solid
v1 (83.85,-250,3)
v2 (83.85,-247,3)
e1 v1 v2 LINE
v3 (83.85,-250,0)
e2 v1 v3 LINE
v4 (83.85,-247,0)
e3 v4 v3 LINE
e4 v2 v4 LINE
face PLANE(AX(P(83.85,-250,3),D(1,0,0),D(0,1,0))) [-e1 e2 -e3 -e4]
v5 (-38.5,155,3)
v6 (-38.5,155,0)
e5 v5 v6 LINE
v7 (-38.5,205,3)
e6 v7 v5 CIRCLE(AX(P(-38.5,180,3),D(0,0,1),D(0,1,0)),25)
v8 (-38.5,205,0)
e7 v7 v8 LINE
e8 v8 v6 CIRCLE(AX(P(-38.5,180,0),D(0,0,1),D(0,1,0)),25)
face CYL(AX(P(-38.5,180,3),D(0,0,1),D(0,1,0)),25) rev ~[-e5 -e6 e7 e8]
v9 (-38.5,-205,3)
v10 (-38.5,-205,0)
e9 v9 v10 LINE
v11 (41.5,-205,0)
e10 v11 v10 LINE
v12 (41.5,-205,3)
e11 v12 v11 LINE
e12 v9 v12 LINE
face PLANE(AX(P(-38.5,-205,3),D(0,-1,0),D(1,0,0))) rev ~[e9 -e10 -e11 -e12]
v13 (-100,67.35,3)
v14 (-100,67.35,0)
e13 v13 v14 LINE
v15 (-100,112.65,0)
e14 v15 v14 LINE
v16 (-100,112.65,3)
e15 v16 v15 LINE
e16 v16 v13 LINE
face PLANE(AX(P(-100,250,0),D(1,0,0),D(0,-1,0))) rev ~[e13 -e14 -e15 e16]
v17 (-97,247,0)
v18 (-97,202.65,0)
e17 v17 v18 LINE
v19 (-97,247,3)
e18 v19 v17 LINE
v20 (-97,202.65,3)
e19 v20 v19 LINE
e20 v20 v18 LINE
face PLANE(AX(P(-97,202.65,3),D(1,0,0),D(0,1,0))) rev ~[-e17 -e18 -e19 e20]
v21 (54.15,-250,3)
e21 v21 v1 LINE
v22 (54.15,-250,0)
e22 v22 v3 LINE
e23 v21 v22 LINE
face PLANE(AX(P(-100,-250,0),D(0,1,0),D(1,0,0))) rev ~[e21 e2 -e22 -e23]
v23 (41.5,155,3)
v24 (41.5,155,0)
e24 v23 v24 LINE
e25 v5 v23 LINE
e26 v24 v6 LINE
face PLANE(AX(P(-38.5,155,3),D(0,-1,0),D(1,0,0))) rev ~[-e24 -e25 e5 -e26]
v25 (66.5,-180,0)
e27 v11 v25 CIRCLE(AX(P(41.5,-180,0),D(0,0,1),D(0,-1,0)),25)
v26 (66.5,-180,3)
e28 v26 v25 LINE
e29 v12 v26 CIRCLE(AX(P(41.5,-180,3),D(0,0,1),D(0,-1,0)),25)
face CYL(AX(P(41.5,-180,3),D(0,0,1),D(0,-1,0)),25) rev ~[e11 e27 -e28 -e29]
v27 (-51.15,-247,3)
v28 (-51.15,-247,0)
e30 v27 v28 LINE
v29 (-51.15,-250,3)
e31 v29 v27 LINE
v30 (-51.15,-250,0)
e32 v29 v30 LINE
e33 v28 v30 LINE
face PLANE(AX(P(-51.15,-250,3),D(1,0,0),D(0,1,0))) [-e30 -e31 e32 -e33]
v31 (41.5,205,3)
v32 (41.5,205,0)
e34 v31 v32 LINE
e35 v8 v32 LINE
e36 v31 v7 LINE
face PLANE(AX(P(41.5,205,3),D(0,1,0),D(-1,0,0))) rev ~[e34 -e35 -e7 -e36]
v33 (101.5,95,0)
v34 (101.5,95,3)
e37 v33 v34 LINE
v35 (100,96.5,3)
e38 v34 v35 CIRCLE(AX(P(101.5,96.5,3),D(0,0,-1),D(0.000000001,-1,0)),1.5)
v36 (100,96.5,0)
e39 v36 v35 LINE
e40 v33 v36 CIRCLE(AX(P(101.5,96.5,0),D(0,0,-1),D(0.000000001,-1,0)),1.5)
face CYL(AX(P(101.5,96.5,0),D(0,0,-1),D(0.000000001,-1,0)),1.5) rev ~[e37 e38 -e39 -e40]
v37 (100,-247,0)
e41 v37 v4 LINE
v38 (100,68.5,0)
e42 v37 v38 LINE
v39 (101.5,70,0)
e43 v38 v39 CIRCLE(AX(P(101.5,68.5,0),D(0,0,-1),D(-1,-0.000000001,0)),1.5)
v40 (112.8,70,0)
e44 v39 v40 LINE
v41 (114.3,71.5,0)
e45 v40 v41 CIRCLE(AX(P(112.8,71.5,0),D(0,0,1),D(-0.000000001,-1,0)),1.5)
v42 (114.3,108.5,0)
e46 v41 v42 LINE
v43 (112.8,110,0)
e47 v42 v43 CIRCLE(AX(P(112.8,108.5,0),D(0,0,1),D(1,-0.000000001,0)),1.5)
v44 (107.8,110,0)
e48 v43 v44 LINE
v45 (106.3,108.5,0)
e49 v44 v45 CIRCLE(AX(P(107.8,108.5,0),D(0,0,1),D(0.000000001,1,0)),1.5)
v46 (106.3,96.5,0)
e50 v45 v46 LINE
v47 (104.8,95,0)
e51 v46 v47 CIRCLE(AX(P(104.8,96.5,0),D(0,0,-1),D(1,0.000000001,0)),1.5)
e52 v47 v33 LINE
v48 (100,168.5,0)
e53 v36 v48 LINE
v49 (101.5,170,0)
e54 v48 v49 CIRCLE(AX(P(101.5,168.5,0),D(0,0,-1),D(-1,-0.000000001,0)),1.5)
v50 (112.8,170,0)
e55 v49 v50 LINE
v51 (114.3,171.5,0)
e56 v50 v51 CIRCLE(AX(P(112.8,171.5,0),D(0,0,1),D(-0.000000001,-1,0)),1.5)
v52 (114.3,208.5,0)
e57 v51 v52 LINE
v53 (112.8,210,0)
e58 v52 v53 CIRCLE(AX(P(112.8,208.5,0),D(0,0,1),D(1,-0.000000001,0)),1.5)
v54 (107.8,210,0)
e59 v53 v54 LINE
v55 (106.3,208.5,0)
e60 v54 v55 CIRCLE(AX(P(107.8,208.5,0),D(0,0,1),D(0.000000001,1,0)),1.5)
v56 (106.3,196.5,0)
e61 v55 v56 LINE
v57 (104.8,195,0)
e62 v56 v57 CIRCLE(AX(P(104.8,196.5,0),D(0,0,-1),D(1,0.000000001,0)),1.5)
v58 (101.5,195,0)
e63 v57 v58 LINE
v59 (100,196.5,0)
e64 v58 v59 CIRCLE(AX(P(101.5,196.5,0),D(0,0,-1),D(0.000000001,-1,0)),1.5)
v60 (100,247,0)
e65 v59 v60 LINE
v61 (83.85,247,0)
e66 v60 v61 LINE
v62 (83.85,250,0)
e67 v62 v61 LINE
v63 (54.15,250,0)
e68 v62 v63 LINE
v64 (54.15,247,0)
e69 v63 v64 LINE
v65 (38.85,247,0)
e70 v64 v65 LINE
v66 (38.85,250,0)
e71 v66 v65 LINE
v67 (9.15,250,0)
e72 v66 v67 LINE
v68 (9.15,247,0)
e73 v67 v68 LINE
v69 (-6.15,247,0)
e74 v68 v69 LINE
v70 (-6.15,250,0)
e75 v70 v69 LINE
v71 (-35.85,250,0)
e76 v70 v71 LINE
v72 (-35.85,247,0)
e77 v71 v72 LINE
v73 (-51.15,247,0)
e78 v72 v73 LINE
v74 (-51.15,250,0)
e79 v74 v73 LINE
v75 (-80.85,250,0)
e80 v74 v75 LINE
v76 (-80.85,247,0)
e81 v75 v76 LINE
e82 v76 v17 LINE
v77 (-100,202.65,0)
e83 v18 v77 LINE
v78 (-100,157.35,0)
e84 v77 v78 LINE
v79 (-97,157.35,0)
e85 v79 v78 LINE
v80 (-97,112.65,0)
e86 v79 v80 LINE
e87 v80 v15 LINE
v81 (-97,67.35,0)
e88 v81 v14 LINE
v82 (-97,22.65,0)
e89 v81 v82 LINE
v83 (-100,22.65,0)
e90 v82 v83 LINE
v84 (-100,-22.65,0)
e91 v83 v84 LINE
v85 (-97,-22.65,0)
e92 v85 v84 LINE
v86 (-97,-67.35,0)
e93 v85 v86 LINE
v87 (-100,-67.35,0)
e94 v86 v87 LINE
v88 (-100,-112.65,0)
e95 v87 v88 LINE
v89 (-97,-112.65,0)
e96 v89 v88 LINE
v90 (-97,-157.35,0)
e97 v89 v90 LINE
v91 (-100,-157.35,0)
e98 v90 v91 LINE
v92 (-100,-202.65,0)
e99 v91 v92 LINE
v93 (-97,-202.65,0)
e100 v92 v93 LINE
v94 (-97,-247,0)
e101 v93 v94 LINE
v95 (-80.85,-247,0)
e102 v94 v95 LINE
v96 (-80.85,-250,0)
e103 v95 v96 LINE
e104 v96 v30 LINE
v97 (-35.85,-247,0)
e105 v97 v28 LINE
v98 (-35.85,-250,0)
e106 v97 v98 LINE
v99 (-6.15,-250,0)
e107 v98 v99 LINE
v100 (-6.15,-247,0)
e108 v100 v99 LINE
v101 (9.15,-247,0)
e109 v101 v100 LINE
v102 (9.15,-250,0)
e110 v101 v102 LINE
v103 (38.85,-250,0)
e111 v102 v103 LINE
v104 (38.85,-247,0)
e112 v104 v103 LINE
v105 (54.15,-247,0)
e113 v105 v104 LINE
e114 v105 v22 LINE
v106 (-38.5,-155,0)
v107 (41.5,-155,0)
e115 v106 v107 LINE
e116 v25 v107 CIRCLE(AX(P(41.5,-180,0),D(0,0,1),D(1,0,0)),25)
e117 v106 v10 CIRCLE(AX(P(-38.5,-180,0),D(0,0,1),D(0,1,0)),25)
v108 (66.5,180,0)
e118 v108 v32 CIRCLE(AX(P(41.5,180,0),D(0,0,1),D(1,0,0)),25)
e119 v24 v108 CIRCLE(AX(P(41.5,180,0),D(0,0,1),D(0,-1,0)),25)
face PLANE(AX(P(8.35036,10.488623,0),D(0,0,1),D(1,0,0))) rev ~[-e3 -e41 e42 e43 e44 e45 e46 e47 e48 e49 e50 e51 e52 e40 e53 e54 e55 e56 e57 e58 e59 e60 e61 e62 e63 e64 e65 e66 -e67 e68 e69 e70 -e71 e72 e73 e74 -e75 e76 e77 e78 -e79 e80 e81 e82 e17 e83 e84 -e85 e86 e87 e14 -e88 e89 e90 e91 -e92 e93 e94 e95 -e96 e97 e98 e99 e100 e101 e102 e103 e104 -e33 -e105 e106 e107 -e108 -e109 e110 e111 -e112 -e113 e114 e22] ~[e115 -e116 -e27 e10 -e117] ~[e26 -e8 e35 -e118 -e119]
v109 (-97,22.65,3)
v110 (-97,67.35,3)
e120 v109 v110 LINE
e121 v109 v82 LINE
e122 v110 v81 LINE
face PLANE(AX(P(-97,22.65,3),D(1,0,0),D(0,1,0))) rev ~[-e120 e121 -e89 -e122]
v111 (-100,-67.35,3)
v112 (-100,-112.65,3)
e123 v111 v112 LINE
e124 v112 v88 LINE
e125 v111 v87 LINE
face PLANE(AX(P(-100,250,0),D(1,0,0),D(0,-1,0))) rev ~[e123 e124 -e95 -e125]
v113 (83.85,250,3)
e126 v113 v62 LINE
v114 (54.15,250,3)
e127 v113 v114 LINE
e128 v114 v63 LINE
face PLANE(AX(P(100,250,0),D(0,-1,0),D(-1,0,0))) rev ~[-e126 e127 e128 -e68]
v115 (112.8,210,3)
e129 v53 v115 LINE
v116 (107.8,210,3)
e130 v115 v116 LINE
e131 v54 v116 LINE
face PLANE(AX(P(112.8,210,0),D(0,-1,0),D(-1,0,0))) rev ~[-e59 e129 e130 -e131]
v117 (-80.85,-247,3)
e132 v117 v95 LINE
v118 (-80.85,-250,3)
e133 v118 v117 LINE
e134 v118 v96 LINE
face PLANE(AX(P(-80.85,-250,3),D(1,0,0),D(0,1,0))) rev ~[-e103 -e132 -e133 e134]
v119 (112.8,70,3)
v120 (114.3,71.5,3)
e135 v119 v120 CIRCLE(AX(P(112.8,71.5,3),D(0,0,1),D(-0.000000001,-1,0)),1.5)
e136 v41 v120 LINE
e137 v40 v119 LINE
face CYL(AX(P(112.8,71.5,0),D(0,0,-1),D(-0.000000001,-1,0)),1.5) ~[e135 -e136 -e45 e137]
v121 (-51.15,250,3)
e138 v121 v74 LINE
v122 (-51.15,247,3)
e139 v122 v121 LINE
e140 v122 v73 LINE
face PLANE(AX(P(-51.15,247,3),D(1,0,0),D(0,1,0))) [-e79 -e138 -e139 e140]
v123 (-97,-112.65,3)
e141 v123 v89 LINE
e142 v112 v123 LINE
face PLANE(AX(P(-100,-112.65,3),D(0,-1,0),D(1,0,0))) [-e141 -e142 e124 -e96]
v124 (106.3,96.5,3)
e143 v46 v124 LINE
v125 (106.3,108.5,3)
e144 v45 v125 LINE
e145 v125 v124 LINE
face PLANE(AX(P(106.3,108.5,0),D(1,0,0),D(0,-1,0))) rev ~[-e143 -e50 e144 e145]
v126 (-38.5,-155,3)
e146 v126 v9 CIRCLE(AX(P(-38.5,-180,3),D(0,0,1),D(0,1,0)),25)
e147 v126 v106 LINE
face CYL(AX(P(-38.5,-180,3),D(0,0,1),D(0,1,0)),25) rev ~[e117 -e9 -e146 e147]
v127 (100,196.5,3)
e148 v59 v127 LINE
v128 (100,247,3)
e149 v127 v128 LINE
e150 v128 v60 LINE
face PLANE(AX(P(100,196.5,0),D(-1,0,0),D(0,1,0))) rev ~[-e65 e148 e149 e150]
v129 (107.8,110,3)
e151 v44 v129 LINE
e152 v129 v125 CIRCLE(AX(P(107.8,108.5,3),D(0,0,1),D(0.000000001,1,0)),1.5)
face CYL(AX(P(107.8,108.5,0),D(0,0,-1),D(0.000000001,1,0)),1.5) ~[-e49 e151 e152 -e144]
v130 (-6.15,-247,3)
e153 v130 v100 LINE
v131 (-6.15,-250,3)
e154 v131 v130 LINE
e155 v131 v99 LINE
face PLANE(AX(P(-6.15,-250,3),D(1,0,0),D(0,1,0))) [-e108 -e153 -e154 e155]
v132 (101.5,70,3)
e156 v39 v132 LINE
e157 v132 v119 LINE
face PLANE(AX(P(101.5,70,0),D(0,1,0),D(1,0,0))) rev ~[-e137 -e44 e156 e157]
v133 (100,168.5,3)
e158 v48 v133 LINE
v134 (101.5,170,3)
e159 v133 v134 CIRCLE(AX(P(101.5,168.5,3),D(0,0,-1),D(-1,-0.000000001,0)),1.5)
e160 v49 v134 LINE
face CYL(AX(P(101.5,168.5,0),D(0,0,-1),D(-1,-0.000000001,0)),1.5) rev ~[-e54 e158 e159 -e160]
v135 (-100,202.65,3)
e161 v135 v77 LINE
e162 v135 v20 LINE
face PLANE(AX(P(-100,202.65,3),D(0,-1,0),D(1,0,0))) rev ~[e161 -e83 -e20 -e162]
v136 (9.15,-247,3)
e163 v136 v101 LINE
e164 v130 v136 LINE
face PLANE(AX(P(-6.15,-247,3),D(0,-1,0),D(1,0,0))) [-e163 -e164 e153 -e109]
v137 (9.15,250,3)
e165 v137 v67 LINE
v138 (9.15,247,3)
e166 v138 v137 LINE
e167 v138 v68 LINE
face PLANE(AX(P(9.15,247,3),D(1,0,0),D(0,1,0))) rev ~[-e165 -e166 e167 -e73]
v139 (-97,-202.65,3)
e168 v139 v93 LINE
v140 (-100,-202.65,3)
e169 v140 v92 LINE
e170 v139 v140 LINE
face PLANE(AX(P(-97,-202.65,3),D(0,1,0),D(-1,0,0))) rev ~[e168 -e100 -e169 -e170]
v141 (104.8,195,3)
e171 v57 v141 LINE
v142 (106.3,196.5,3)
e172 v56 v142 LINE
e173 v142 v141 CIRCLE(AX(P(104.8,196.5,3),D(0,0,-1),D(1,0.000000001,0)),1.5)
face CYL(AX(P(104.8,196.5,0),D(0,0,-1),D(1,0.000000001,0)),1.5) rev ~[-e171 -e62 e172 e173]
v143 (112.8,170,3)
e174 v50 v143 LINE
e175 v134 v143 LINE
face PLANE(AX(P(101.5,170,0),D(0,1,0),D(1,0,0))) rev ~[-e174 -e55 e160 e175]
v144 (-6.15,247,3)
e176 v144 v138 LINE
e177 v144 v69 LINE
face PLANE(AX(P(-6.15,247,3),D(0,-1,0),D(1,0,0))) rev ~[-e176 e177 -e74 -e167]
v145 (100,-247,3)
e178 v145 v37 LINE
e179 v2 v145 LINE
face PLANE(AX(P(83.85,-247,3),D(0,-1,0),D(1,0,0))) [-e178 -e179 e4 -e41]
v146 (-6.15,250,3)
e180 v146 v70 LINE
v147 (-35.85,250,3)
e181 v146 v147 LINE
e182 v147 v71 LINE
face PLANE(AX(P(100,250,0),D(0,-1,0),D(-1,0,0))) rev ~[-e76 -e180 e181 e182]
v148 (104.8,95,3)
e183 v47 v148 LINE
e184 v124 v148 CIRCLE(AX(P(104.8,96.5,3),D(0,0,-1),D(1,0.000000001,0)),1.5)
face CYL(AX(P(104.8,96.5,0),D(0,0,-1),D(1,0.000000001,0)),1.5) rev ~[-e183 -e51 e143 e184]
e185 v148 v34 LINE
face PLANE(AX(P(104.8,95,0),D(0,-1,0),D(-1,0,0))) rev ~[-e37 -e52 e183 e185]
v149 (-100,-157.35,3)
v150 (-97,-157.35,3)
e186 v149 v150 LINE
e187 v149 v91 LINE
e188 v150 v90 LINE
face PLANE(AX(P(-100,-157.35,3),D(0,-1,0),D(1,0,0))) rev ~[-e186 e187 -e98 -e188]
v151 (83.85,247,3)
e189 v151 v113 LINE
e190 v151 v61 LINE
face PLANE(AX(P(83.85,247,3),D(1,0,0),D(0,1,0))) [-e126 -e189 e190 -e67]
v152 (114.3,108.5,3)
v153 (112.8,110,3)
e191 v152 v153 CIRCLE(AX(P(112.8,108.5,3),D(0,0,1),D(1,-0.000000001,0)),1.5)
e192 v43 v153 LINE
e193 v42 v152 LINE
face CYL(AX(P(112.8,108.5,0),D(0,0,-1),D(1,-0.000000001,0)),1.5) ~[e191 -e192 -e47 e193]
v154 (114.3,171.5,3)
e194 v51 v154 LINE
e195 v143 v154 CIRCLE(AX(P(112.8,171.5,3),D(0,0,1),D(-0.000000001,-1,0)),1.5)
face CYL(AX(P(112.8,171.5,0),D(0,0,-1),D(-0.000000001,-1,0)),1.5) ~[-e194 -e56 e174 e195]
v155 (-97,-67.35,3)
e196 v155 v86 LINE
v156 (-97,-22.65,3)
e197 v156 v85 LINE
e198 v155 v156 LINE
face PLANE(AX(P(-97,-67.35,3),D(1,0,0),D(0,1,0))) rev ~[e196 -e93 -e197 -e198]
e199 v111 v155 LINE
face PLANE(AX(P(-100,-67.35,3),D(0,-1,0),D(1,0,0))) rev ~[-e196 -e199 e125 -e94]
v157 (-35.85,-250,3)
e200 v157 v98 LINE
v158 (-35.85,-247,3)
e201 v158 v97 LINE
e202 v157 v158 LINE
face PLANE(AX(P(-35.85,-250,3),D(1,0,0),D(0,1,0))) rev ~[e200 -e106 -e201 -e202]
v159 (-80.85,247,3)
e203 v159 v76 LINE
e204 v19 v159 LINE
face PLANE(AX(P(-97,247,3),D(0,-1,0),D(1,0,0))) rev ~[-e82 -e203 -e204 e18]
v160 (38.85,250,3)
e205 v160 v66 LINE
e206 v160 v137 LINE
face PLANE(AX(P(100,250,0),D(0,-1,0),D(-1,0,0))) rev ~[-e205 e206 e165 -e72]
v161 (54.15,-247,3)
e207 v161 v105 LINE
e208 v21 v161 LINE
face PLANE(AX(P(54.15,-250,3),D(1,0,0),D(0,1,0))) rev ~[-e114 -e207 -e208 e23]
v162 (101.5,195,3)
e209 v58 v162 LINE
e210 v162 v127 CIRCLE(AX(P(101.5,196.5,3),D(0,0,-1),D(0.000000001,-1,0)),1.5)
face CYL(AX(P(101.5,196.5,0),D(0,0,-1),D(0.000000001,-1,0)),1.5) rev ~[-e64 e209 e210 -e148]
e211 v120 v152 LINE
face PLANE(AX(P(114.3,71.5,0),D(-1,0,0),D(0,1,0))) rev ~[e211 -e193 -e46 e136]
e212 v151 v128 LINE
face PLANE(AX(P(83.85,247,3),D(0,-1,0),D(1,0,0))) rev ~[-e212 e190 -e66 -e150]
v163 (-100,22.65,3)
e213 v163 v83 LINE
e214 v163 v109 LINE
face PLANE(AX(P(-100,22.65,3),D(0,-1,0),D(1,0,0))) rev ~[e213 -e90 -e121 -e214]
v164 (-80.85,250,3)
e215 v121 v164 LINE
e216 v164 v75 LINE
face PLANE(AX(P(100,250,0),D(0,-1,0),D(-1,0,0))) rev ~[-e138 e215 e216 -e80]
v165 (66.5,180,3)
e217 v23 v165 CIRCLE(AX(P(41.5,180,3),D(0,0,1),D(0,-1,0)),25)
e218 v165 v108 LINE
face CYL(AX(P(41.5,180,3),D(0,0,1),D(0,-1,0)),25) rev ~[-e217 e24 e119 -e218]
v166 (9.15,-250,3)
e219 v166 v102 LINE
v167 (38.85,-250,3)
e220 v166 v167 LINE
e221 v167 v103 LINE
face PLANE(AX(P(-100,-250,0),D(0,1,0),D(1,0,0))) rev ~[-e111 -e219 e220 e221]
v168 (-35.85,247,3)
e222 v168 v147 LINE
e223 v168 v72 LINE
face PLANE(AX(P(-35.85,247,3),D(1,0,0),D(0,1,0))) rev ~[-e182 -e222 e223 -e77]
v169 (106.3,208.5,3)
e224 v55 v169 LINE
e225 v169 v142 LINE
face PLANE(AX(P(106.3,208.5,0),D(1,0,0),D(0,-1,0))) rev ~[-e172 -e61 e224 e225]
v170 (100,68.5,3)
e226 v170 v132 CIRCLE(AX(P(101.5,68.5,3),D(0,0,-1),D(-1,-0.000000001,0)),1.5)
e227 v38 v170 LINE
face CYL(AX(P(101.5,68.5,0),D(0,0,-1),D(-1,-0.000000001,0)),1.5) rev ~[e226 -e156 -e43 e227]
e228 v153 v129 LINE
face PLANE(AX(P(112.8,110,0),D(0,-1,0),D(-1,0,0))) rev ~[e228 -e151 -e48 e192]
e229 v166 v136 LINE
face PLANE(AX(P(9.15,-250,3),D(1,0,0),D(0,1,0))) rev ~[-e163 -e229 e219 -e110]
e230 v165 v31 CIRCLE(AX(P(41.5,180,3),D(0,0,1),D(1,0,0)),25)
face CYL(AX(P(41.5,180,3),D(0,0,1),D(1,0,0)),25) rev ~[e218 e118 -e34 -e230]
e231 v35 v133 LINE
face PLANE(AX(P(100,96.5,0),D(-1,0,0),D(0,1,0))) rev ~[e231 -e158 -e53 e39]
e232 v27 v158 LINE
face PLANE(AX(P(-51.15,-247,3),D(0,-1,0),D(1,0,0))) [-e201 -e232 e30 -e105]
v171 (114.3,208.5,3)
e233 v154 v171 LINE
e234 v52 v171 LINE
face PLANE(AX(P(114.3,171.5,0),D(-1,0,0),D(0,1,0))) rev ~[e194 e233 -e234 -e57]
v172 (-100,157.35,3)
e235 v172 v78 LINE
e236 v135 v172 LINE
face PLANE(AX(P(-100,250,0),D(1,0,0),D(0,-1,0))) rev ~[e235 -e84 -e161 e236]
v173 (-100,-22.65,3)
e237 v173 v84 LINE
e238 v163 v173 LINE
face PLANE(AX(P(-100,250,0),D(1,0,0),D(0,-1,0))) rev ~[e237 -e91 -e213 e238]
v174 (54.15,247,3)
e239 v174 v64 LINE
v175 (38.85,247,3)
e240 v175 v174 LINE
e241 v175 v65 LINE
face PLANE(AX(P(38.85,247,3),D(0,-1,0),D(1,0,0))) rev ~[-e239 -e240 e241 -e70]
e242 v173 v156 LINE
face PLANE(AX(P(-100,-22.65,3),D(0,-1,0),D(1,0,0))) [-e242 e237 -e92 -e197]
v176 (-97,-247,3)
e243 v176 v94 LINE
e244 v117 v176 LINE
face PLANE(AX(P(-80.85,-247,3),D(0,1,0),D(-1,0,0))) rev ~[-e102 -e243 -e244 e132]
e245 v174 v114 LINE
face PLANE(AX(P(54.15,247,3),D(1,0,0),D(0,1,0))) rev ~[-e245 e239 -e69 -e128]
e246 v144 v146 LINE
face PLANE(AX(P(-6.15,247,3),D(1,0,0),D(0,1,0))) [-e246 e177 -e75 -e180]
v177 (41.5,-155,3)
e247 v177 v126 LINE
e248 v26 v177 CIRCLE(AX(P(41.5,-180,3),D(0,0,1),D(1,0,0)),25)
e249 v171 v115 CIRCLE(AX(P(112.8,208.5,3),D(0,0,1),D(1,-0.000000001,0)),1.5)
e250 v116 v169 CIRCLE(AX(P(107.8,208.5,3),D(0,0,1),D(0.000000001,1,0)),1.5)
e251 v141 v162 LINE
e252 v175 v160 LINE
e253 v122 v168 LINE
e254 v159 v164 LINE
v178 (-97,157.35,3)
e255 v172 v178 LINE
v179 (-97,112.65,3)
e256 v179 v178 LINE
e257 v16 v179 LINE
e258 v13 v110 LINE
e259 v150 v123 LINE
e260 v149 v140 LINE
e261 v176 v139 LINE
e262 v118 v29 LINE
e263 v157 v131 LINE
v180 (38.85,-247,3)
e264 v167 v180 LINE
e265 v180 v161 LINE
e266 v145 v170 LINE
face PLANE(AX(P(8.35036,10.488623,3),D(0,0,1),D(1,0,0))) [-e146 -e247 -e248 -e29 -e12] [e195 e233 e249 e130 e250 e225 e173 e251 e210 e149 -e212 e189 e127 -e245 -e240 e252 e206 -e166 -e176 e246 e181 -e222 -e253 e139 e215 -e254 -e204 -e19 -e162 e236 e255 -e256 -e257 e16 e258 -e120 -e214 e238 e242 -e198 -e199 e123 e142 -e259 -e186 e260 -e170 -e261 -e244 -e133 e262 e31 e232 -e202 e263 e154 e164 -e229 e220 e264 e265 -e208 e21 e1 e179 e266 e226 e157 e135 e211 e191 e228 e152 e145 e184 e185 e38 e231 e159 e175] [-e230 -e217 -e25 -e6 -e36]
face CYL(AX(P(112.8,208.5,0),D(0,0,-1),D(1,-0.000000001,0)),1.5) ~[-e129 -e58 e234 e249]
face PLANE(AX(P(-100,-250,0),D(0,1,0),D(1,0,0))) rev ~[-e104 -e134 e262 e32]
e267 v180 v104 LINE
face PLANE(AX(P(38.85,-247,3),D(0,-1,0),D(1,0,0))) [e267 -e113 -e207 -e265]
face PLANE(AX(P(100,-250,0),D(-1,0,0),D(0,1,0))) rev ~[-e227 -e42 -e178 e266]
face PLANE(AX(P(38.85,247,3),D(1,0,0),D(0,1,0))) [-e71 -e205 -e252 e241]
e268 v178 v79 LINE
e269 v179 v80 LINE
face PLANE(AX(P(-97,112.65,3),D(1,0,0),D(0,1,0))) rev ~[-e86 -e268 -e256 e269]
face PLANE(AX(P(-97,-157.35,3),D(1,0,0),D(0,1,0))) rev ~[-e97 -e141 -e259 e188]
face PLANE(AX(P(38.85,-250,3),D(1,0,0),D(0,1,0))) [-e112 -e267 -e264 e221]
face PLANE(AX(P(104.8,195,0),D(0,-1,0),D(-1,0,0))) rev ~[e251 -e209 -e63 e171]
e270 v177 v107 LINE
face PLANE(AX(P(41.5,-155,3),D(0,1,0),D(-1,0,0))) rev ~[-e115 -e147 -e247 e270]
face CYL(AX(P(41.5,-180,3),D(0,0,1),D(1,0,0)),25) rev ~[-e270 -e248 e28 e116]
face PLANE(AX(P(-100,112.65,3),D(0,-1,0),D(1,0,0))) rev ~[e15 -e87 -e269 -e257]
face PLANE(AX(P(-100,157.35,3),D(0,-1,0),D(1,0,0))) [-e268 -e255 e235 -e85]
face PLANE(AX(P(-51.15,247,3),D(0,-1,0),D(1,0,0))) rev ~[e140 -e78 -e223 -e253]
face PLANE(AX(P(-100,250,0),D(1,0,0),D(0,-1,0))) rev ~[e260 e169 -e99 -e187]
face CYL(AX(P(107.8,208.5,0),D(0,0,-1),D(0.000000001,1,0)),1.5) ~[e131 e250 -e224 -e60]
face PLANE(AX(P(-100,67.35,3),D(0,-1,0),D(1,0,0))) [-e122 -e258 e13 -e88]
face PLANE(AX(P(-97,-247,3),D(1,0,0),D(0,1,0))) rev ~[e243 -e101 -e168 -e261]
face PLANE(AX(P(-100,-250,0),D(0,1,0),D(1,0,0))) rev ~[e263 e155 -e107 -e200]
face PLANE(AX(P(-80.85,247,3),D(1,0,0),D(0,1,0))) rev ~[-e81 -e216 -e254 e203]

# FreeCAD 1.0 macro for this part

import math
import FreeCAD as App
import Part
import Sketcher
from FreeCAD import Vector


def add_polygon(sketch, points):
    """Adds a closed chain of lines whose ends are joined by coincident constraints."""
    first, n = sketch.GeometryCount, len(points)
    for a, b in zip(points, points[1:] + points[:1]):
        sketch.addGeometry(Part.LineSegment(App.Vector(*a, 0), App.Vector(*b, 0)), False)
    for i in range(n):
        sketch.addConstraint(Sketcher.Constraint("Coincident", first + i, 2, first + (i + 1) % n, 1))

doc = App.newDocument("Part")
body = doc.addObject("PartDesign::Body", "Body")

# Sketch on XY plane
sketch1 = body.newObject("Sketcher::SketchObject", "Sketch")
sketch1.AttachmentSupport = (doc.getObject("XY_Plane"), [""])
sketch1.MapMode = "FlatFace"
sketch1.addGeometry([
    Part.LineSegment(Vector(104.8, 195, 0), Vector(101.5, 195, 0)),  # 0
    Part.ArcOfCircle(Part.Circle(Vector(101.5, 196.5, 0), Vector(0, 0, 1), 1.5), math.radians(180), math.radians(270)),  # 1
    Part.LineSegment(Vector(100, 196.5, 0), Vector(100, 250, 0)),  # 2
    Part.LineSegment(Vector(100, 250, 0), Vector(-100, 250, 0)),  # 3
    Part.LineSegment(Vector(-100, 250, 0), Vector(-100, -250, 0)),  # 4
    Part.LineSegment(Vector(-100, -250, 0), Vector(100, -250, 0)),  # 5
    Part.LineSegment(Vector(100, -250, 0), Vector(100, 68.5, 0)),  # 6
    Part.ArcOfCircle(Part.Circle(Vector(101.5, 68.5, 0), Vector(0, 0, 1), 1.5), math.radians(90), math.radians(180)),  # 7
    Part.LineSegment(Vector(101.5, 70, 0), Vector(112.8, 70, 0)),  # 8
    Part.ArcOfCircle(Part.Circle(Vector(112.8, 71.5, 0), Vector(0, 0, 1), 1.5), math.radians(-90), math.radians(0)),  # 9
    Part.LineSegment(Vector(114.3, 71.5, 0), Vector(114.3, 108.5, 0)),  # 10
    Part.ArcOfCircle(Part.Circle(Vector(112.8, 108.5, 0), Vector(0, 0, 1), 1.5), math.radians(0), math.radians(90)),  # 11
    Part.LineSegment(Vector(112.8, 110, 0), Vector(107.8, 110, 0)),  # 12
    Part.ArcOfCircle(Part.Circle(Vector(107.8, 108.5, 0), Vector(0, 0, 1), 1.5), math.radians(90), math.radians(180)),  # 13
    Part.LineSegment(Vector(106.3, 108.5, 0), Vector(106.3, 96.5, 0)),  # 14
    Part.ArcOfCircle(Part.Circle(Vector(104.8, 96.5, 0), Vector(0, 0, 1), 1.5), math.radians(-90), math.radians(0)),  # 15
    Part.LineSegment(Vector(104.8, 95, 0), Vector(101.5, 95, 0)),  # 16
    Part.ArcOfCircle(Part.Circle(Vector(101.5, 96.5, 0), Vector(0, 0, 1), 1.5), math.radians(180), math.radians(270)),  # 17
    Part.LineSegment(Vector(100, 96.5, 0), Vector(100, 168.5, 0)),  # 18
    Part.ArcOfCircle(Part.Circle(Vector(101.5, 168.5, 0), Vector(0, 0, 1), 1.5), math.radians(90), math.radians(180)),  # 19
    Part.LineSegment(Vector(101.5, 170, 0), Vector(112.8, 170, 0)),  # 20
    Part.ArcOfCircle(Part.Circle(Vector(112.8, 171.5, 0), Vector(0, 0, 1), 1.5), math.radians(-90), math.radians(0)),  # 21
    Part.LineSegment(Vector(114.3, 171.5, 0), Vector(114.3, 208.5, 0)),  # 22
    Part.ArcOfCircle(Part.Circle(Vector(112.8, 208.5, 0), Vector(0, 0, 1), 1.5), math.radians(0), math.radians(90)),  # 23
    Part.LineSegment(Vector(112.8, 210, 0), Vector(107.8, 210, 0)),  # 24
    Part.ArcOfCircle(Part.Circle(Vector(107.8, 208.5, 0), Vector(0, 0, 1), 1.5), math.radians(90), math.radians(180)),  # 25
    Part.LineSegment(Vector(106.3, 208.5, 0), Vector(106.3, 196.5, 0)),  # 26
    Part.ArcOfCircle(Part.Circle(Vector(104.8, 196.5, 0), Vector(0, 0, 1), 1.5), math.radians(-90), math.radians(0)),  # 27
], False)
sketch1.addConstraint([
    Sketcher.Constraint("Tangent", 0, 2, 1, 2),
    Sketcher.Constraint("Tangent", 1, 1, 2, 1),
    Sketcher.Constraint("Coincident", 2, 2, 3, 1),
    Sketcher.Constraint("Coincident", 3, 2, 4, 1),
    Sketcher.Constraint("Coincident", 4, 2, 5, 1),
    Sketcher.Constraint("Coincident", 5, 2, 6, 1),
    Sketcher.Constraint("Tangent", 6, 2, 7, 2),
    Sketcher.Constraint("Tangent", 7, 1, 8, 1),
    Sketcher.Constraint("Tangent", 8, 2, 9, 1),
    Sketcher.Constraint("Tangent", 9, 2, 10, 1),
    Sketcher.Constraint("Tangent", 10, 2, 11, 1),
    Sketcher.Constraint("Tangent", 11, 2, 12, 1),
    Sketcher.Constraint("Tangent", 12, 2, 13, 1),
    Sketcher.Constraint("Tangent", 13, 2, 14, 1),
    Sketcher.Constraint("Tangent", 14, 2, 15, 2),
    Sketcher.Constraint("Tangent", 15, 1, 16, 1),
    Sketcher.Constraint("Tangent", 16, 2, 17, 2),
    Sketcher.Constraint("Tangent", 17, 1, 18, 1),
    Sketcher.Constraint("Tangent", 18, 2, 19, 2),
    Sketcher.Constraint("Tangent", 19, 1, 20, 1),
    Sketcher.Constraint("Tangent", 20, 2, 21, 1),
    Sketcher.Constraint("Tangent", 21, 2, 22, 1),
    Sketcher.Constraint("Tangent", 22, 2, 23, 1),
    Sketcher.Constraint("Tangent", 23, 2, 24, 1),
    Sketcher.Constraint("Tangent", 24, 2, 25, 1),
    Sketcher.Constraint("Tangent", 25, 2, 26, 1),
    Sketcher.Constraint("Tangent", 26, 2, 27, 2),
    Sketcher.Constraint("Tangent", 27, 1, 0, 1),
    Sketcher.Constraint("Horizontal", 0),
    Sketcher.Constraint("Vertical", 2),
    Sketcher.Constraint("Horizontal", 3),
    Sketcher.Constraint("Vertical", 4),
    Sketcher.Constraint("Horizontal", 5),
    Sketcher.Constraint("Vertical", 6),
    Sketcher.Constraint("Horizontal", 8),
    Sketcher.Constraint("Vertical", 10),
    Sketcher.Constraint("Horizontal", 12),
    Sketcher.Constraint("Vertical", 14),
    Sketcher.Constraint("Horizontal", 16),
    Sketcher.Constraint("Vertical", 18),
    Sketcher.Constraint("Horizontal", 20),
    Sketcher.Constraint("Vertical", 22),
    Sketcher.Constraint("Horizontal", 24),
    Sketcher.Constraint("Vertical", 26),
    Sketcher.Constraint("Equal", 1, 7),
    Sketcher.Constraint("Equal", 7, 9),
    Sketcher.Constraint("Equal", 9, 11),
    Sketcher.Constraint("Equal", 11, 13),
    Sketcher.Constraint("Equal", 13, 15),
    Sketcher.Constraint("Equal", 15, 17),
    Sketcher.Constraint("Equal", 17, 19),
    Sketcher.Constraint("Equal", 19, 21),
    Sketcher.Constraint("Equal", 21, 23),
    Sketcher.Constraint("Equal", 23, 25),
    Sketcher.Constraint("Equal", 25, 27),
    Sketcher.Constraint("Symmetric", 2, 2, 4, 2, -1, 1),
    Sketcher.Constraint("Vertical", 1, 3, 7, 3),
    Sketcher.Constraint("Vertical", 7, 3, 17, 3),
    Sketcher.Constraint("Vertical", 11, 3, 21, 3),
    Sketcher.Constraint("Vertical", 13, 3, 25, 3),
    Sketcher.Constraint("Equal", 10, 22),
    Sketcher.Constraint("Equal", 14, 26),
    Sketcher.Constraint("Radius", 1, 1.5),
    Sketcher.Constraint("DistanceX", 3, 2, 3, 1, 200.0),
    Sketcher.Constraint("DistanceX", 12, 2, 12, 1, 5.0),
    Sketcher.Constraint("DistanceY", 4, 2, 4, 1, 500.0),
    Sketcher.Constraint("DistanceY", 10, 1, 10, 2, 37.0),
    Sketcher.Constraint("DistanceY", 14, 2, 14, 1, 12.0),
    Sketcher.Constraint("DistanceY", 18, 1, 18, 2, 72.0),
    Sketcher.Constraint("DistanceX", 0, 2, 0, 1, 3.3),
    Sketcher.Constraint("DistanceY", 2, 1, 2, 2, 53.5),
])
pad1 = body.newObject("PartDesign::Pad", "Pad")
pad1.Profile = sketch1
pad1.Length = 3

# Sketch on XY plane
sketch2 = body.newObject("Sketcher::SketchObject", "Sketch001")
sketch2.AttachmentSupport = (doc.getObject("XY_Plane"), [""])
sketch2.MapMode = "FlatFace"
sketch2.AttachmentOffset = App.Placement(Vector(0, 0, 3), App.Rotation())
add_polygon(sketch2, [(-100, -250), (-80.8, -250), (-80.8, -247), (-97, -247), (-97, -202.7), (-100, -202.7)])  # lines 0-5
sketch2.addConstraint([
    Sketcher.Constraint("Horizontal", 0),
    Sketcher.Constraint("Vertical", 1),
    Sketcher.Constraint("Horizontal", 2),
    Sketcher.Constraint("Vertical", 3),
    Sketcher.Constraint("Horizontal", 4),
    Sketcher.Constraint("Vertical", 5),
    Sketcher.Constraint("Equal", 4, 1),
    Sketcher.Constraint("DistanceX", 4, 2, 4, 1, 3.0),
    Sketcher.Constraint("DistanceY", 0, 2, -1, 1, 250.0),
    Sketcher.Constraint("DistanceX", 2, 2, -1, 1, 97.0),
    Sketcher.Constraint("DistanceX", 0, 1, 0, 2, 19.15),
    Sketcher.Constraint("DistanceY", 3, 1, 3, 2, 44.35),
])
pocket1 = body.newObject("PartDesign::Pocket", "Pocket")
pocket1.Profile = sketch2
pocket1.Type = "UpToFirst"

# Sketch on XY plane
sketch3 = body.newObject("Sketcher::SketchObject", "Sketch002")
sketch3.AttachmentSupport = (doc.getObject("XY_Plane"), [""])
sketch3.MapMode = "FlatFace"
sketch3.AttachmentOffset = App.Placement(Vector(0, 0, 3), App.Rotation())
add_polygon(sketch3, [(-51.1, -247), (-51.1, -250), (-35.9, -250), (-35.9, -247)])  # lines 0-3
sketch3.addConstraint([
    Sketcher.Constraint("Vertical", 0),
    Sketcher.Constraint("Horizontal", 1),
    Sketcher.Constraint("Vertical", 2),
    Sketcher.Constraint("Horizontal", 3),
    Sketcher.Constraint("DistanceY", 0, 2, 0, 1, 3.0),
    Sketcher.Constraint("DistanceX", 1, 1, 1, 2, 15.3),
    Sketcher.Constraint("DistanceY", 0, 2, -1, 1, 250.0),
    Sketcher.Constraint("DistanceX", 0, 2, -1, 1, 51.15),
])
pocket2 = body.newObject("PartDesign::Pocket", "Pocket001")
pocket2.Profile = sketch3
pocket2.Type = "UpToFirst"

# Sketch on XY plane
sketch4 = body.newObject("Sketcher::SketchObject", "Sketch003")
sketch4.AttachmentSupport = (doc.getObject("XY_Plane"), [""])
sketch4.MapMode = "FlatFace"
sketch4.AttachmentOffset = App.Placement(Vector(0, 0, 3), App.Rotation())
add_polygon(sketch4, [(-6.2, -247), (-6.2, -250), (9.2, -250), (9.2, -247)])  # lines 0-3
sketch4.addConstraint([
    Sketcher.Constraint("Vertical", 0),
    Sketcher.Constraint("Horizontal", 1),
    Sketcher.Constraint("Vertical", 2),
    Sketcher.Constraint("Horizontal", 3),
    Sketcher.Constraint("DistanceY", 0, 2, 0, 1, 3.0),
    Sketcher.Constraint("DistanceX", 1, 1, 1, 2, 15.3),
    Sketcher.Constraint("DistanceY", 0, 2, -1, 1, 250.0),
    Sketcher.Constraint("DistanceX", 0, 2, -1, 1, 6.15),
])
pocket3 = body.newObject("PartDesign::Pocket", "Pocket002")
pocket3.Profile = sketch4
pocket3.Type = "UpToFirst"

# Sketch on XY plane
sketch5 = body.newObject("Sketcher::SketchObject", "Sketch004")
sketch5.AttachmentSupport = (doc.getObject("XY_Plane"), [""])
sketch5.MapMode = "FlatFace"
sketch5.AttachmentOffset = App.Placement(Vector(0, 0, 3), App.Rotation())
add_polygon(sketch5, [(38.9, -247), (38.9, -250), (54.1, -250), (54.1, -247)])  # lines 0-3
sketch5.addConstraint([
    Sketcher.Constraint("Vertical", 0),
    Sketcher.Constraint("Horizontal", 1),
    Sketcher.Constraint("Vertical", 2),
    Sketcher.Constraint("Horizontal", 3),
    Sketcher.Constraint("DistanceY", 0, 2, 0, 1, 3.0),
    Sketcher.Constraint("DistanceX", 1, 1, 1, 2, 15.3),
    Sketcher.Constraint("DistanceY", 0, 2, -1, 1, 250.0),
    Sketcher.Constraint("DistanceX", -1, 1, 0, 2, 38.85),
])
pocket4 = body.newObject("PartDesign::Pocket", "Pocket003")
pocket4.Profile = sketch5
pocket4.Type = "UpToFirst"

# Sketch on XY plane
sketch6 = body.newObject("Sketcher::SketchObject", "Sketch005")
sketch6.AttachmentSupport = (doc.getObject("XY_Plane"), [""])
sketch6.MapMode = "FlatFace"
sketch6.AttachmentOffset = App.Placement(Vector(0, 0, 3), App.Rotation())
add_polygon(sketch6, [(83.8, -247), (83.8, -250), (100, -250), (100, -247)])  # lines 0-3
sketch6.addConstraint([
    Sketcher.Constraint("Vertical", 0),
    Sketcher.Constraint("Horizontal", 1),
    Sketcher.Constraint("Vertical", 2),
    Sketcher.Constraint("Horizontal", 3),
    Sketcher.Constraint("DistanceY", 0, 2, 0, 1, 3.0),
    Sketcher.Constraint("DistanceY", 0, 2, -1, 1, 250.0),
    Sketcher.Constraint("DistanceX", -1, 1, 1, 2, 100.0),
    Sketcher.Constraint("DistanceX", 1, 1, 1, 2, 16.15),
])
pocket5 = body.newObject("PartDesign::Pocket", "Pocket004")
pocket5.Profile = sketch6
pocket5.Type = "UpToFirst"

# Sketch on XY plane
sketch7 = body.newObject("Sketcher::SketchObject", "Sketch006")
sketch7.AttachmentSupport = (doc.getObject("XY_Plane"), [""])
sketch7.MapMode = "FlatFace"
sketch7.AttachmentOffset = App.Placement(Vector(0, 0, 3), App.Rotation())
add_polygon(sketch7, [(-100, -112.7), (-100, -157.3), (-97, -157.3), (-97, -112.7)])  # lines 0-3
sketch7.addConstraint([
    Sketcher.Constraint("Vertical", 0),
    Sketcher.Constraint("Horizontal", 1),
    Sketcher.Constraint("Vertical", 2),
    Sketcher.Constraint("Horizontal", 3),
    Sketcher.Constraint("DistanceX", 1, 1, 1, 2, 3.0),
    Sketcher.Constraint("DistanceY", 0, 2, 0, 1, 44.7),
    Sketcher.Constraint("DistanceX", 0, 2, -1, 1, 100.0),
    Sketcher.Constraint("DistanceY", 0, 2, -1, 1, 157.35),
])
pocket6 = body.newObject("PartDesign::Pocket", "Pocket005")
pocket6.Profile = sketch7
pocket6.Type = "UpToFirst"

# Sketch on XY plane
sketch8 = body.newObject("Sketcher::SketchObject", "Sketch007")
sketch8.AttachmentSupport = (doc.getObject("XY_Plane"), [""])
sketch8.MapMode = "FlatFace"
sketch8.AttachmentOffset = App.Placement(Vector(0, 0, 3), App.Rotation())
add_polygon(sketch8, [(-100, -22.6), (-100, -67.3), (-97, -67.3), (-97, -22.6)])  # lines 0-3
sketch8.addConstraint([
    Sketcher.Constraint("Vertical", 0),
    Sketcher.Constraint("Horizontal", 1),
    Sketcher.Constraint("Vertical", 2),
    Sketcher.Constraint("Horizontal", 3),
    Sketcher.Constraint("DistanceX", 1, 1, 1, 2, 3.0),
    Sketcher.Constraint("DistanceY", 0, 2, 0, 1, 44.7),
    Sketcher.Constraint("DistanceX", 0, 2, -1, 1, 100.0),
    Sketcher.Constraint("DistanceY", 0, 2, -1, 1, 67.35),
])
pocket7 = body.newObject("PartDesign::Pocket", "Pocket006")
pocket7.Profile = sketch8
pocket7.Type = "UpToFirst"

# Sketch on XY plane
sketch9 = body.newObject("Sketcher::SketchObject", "Sketch008")
sketch9.AttachmentSupport = (doc.getObject("XY_Plane"), [""])
sketch9.MapMode = "FlatFace"
sketch9.AttachmentOffset = App.Placement(Vector(0, 0, 3), App.Rotation())
add_polygon(sketch9, [(-100, 67.3), (-100, 22.6), (-97, 22.6), (-97, 67.3)])  # lines 0-3
sketch9.addConstraint([
    Sketcher.Constraint("Vertical", 0),
    Sketcher.Constraint("Horizontal", 1),
    Sketcher.Constraint("Vertical", 2),
    Sketcher.Constraint("Horizontal", 3),
    Sketcher.Constraint("DistanceX", 1, 1, 1, 2, 3.0),
    Sketcher.Constraint("DistanceY", 0, 2, 0, 1, 44.7),
    Sketcher.Constraint("DistanceX", 0, 2, -1, 1, 100.0),
    Sketcher.Constraint("DistanceY", -1, 1, 0, 2, 22.65),
])
pocket8 = body.newObject("PartDesign::Pocket", "Pocket007")
pocket8.Profile = sketch9
pocket8.Type = "UpToFirst"

# Sketch on XY plane
sketch10 = body.newObject("Sketcher::SketchObject", "Sketch009")
sketch10.AttachmentSupport = (doc.getObject("XY_Plane"), [""])
sketch10.MapMode = "FlatFace"
sketch10.AttachmentOffset = App.Placement(Vector(0, 0, 3), App.Rotation())
add_polygon(sketch10, [(-100, 157.3), (-100, 112.7), (-97, 112.7), (-97, 157.3)])  # lines 0-3
sketch10.addConstraint([
    Sketcher.Constraint("Vertical", 0),
    Sketcher.Constraint("Horizontal", 1),
    Sketcher.Constraint("Vertical", 2),
    Sketcher.Constraint("Horizontal", 3),
    Sketcher.Constraint("DistanceX", 1, 1, 1, 2, 3.0),
    Sketcher.Constraint("DistanceY", 0, 2, 0, 1, 44.7),
    Sketcher.Constraint("DistanceX", 0, 2, -1, 1, 100.0),
    Sketcher.Constraint("DistanceY", -1, 1, 0, 2, 112.65),
])
pocket9 = body.newObject("PartDesign::Pocket", "Pocket008")
pocket9.Profile = sketch10
pocket9.Type = "UpToFirst"

# Sketch on XY plane
sketch11 = body.newObject("Sketcher::SketchObject", "Sketch010")
sketch11.AttachmentSupport = (doc.getObject("XY_Plane"), [""])
sketch11.MapMode = "FlatFace"
sketch11.AttachmentOffset = App.Placement(Vector(0, 0, 3), App.Rotation())
add_polygon(sketch11, [(-80.8, 247), (-80.8, 250), (-100, 250), (-100, 202.7), (-97, 202.7), (-97, 247)])  # lines 0-5
sketch11.addConstraint([
    Sketcher.Constraint("Vertical", 0),
    Sketcher.Constraint("Horizontal", 1),
    Sketcher.Constraint("Vertical", 2),
    Sketcher.Constraint("Horizontal", 3),
    Sketcher.Constraint("Vertical", 4),
    Sketcher.Constraint("Horizontal", 5),
    Sketcher.Constraint("Equal", 3, 0),
    Sketcher.Constraint("DistanceX", 3, 1, 3, 2, 3.0),
    Sketcher.Constraint("DistanceY", -1, 1, 0, 2, 250.0),
    Sketcher.Constraint("DistanceX", 1, 2, -1, 1, 100.0),
    Sketcher.Constraint("DistanceX", 1, 2, 1, 1, 19.15),
    Sketcher.Constraint("DistanceY", 2, 2, 2, 1, 47.35),
])
pocket10 = body.newObject("PartDesign::Pocket", "Pocket009")
pocket10.Profile = sketch11
pocket10.Type = "UpToFirst"

# Sketch on XY plane
sketch12 = body.newObject("Sketcher::SketchObject", "Sketch011")
sketch12.AttachmentSupport = (doc.getObject("XY_Plane"), [""])
sketch12.MapMode = "FlatFace"
sketch12.AttachmentOffset = App.Placement(Vector(0, 0, 3), App.Rotation())
add_polygon(sketch12, [(-51.1, 250), (-51.1, 247), (-35.9, 247), (-35.9, 250)])  # lines 0-3
sketch12.addConstraint([
    Sketcher.Constraint("Vertical", 0),
    Sketcher.Constraint("Horizontal", 1),
    Sketcher.Constraint("Vertical", 2),
    Sketcher.Constraint("Horizontal", 3),
    Sketcher.Constraint("DistanceY", 0, 2, 0, 1, 3.0),
    Sketcher.Constraint("DistanceX", 1, 1, 1, 2, 15.3),
    Sketcher.Constraint("DistanceY", -1, 1, 0, 2, 247.0),
    Sketcher.Constraint("DistanceX", 0, 2, -1, 1, 51.15),
])
pocket11 = body.newObject("PartDesign::Pocket", "Pocket010")
pocket11.Profile = sketch12
pocket11.Type = "UpToFirst"

# Sketch on XY plane
sketch13 = body.newObject("Sketcher::SketchObject", "Sketch012")
sketch13.AttachmentSupport = (doc.getObject("XY_Plane"), [""])
sketch13.MapMode = "FlatFace"
sketch13.AttachmentOffset = App.Placement(Vector(0, 0, 3), App.Rotation())
sketch13.addGeometry([
    Part.ArcOfCircle(Part.Circle(Vector(42, 180, 0), Vector(0, 0, 1), 25), math.radians(-90), math.radians(0)),  # 0
    Part.ArcOfCircle(Part.Circle(Vector(42, 180, 0), Vector(0, 0, 1), 25), math.radians(0), math.radians(90)),  # 1
    Part.LineSegment(Vector(42, 205, 0), Vector(-38, 205, 0)),  # 2
    Part.ArcOfCircle(Part.Circle(Vector(-38, 180, 0), Vector(0, 0, 1), 25), math.radians(90), math.radians(270)),  # 3
    Part.LineSegment(Vector(-38, 155, 0), Vector(42, 155, 0)),  # 4
], False)
sketch13.addConstraint([
    Sketcher.Constraint("Tangent", 0, 2, 1, 1),
    Sketcher.Constraint("Tangent", 1, 2, 2, 1),
    Sketcher.Constraint("Tangent", 2, 2, 3, 1),
    Sketcher.Constraint("Tangent", 3, 2, 4, 1),
    Sketcher.Constraint("Tangent", 4, 2, 0, 1),
    Sketcher.Constraint("Horizontal", 2),
    Sketcher.Constraint("Horizontal", 4),
    Sketcher.Constraint("Equal", 0, 1),
    Sketcher.Constraint("Horizontal", 3, 3, 0, 2),
    Sketcher.Constraint("Radius", 0, 25.0),
    Sketcher.Constraint("DistanceX", 2, 2, 2, 1, 80.0),
    Sketcher.Constraint("DistanceY", -1, 1, 0, 3, 180.0),
    Sketcher.Constraint("DistanceX", -1, 1, 0, 3, 41.5),
])
pocket12 = body.newObject("PartDesign::Pocket", "Pocket011")
pocket12.Profile = sketch13
pocket12.Type = "UpToFirst"

# Sketch on XY plane
sketch14 = body.newObject("Sketcher::SketchObject", "Sketch013")
sketch14.AttachmentSupport = (doc.getObject("XY_Plane"), [""])
sketch14.MapMode = "FlatFace"
sketch14.AttachmentOffset = App.Placement(Vector(0, 0, 3), App.Rotation())
add_polygon(sketch14, [(38.9, 250), (38.9, 247), (54.1, 247), (54.1, 250)])  # lines 0-3
sketch14.addConstraint([
    Sketcher.Constraint("Vertical", 0),
    Sketcher.Constraint("Horizontal", 1),
    Sketcher.Constraint("Vertical", 2),
    Sketcher.Constraint("Horizontal", 3),
    Sketcher.Constraint("DistanceY", 0, 2, 0, 1, 3.0),
    Sketcher.Constraint("DistanceX", 1, 1, 1, 2, 15.3),
    Sketcher.Constraint("DistanceY", -1, 1, 0, 2, 247.0),
    Sketcher.Constraint("DistanceX", -1, 1, 0, 2, 38.85),
])
pocket13 = body.newObject("PartDesign::Pocket", "Pocket012")
pocket13.Profile = sketch14
pocket13.Type = "UpToFirst"

# Sketch on XY plane
sketch15 = body.newObject("Sketcher::SketchObject", "Sketch014")
sketch15.AttachmentSupport = (doc.getObject("XY_Plane"), [""])
sketch15.MapMode = "FlatFace"
sketch15.AttachmentOffset = App.Placement(Vector(0, 0, 3), App.Rotation())
add_polygon(sketch15, [(-6.2, 250), (-6.2, 247), (9.2, 247), (9.2, 250)])  # lines 0-3
sketch15.addConstraint([
    Sketcher.Constraint("Vertical", 0),
    Sketcher.Constraint("Horizontal", 1),
    Sketcher.Constraint("Vertical", 2),
    Sketcher.Constraint("Horizontal", 3),
    Sketcher.Constraint("DistanceY", 0, 2, 0, 1, 3.0),
    Sketcher.Constraint("DistanceX", 1, 1, 1, 2, 15.3),
    Sketcher.Constraint("DistanceY", -1, 1, 0, 2, 247.0),
    Sketcher.Constraint("DistanceX", 0, 2, -1, 1, 6.15),
])
pocket14 = body.newObject("PartDesign::Pocket", "Pocket013")
pocket14.Profile = sketch15
pocket14.Type = "UpToFirst"

# Sketch on XY plane
sketch16 = body.newObject("Sketcher::SketchObject", "Sketch015")
sketch16.AttachmentSupport = (doc.getObject("XY_Plane"), [""])
sketch16.MapMode = "FlatFace"
sketch16.AttachmentOffset = App.Placement(Vector(0, 0, 3), App.Rotation())
add_polygon(sketch16, [(83.8, 250), (83.8, 247), (100, 247), (100, 250)])  # lines 0-3
sketch16.addConstraint([
    Sketcher.Constraint("Vertical", 0),
    Sketcher.Constraint("Horizontal", 1),
    Sketcher.Constraint("Vertical", 2),
    Sketcher.Constraint("Horizontal", 3),
    Sketcher.Constraint("DistanceY", 0, 2, 0, 1, 3.0),
    Sketcher.Constraint("DistanceY", -1, 1, 0, 2, 247.0),
    Sketcher.Constraint("DistanceX", -1, 1, 1, 2, 100.0),
    Sketcher.Constraint("DistanceX", 1, 1, 1, 2, 16.15),
])
pocket15 = body.newObject("PartDesign::Pocket", "Pocket014")
pocket15.Profile = sketch16
pocket15.Type = "UpToFirst"

# Sketch on XY plane
sketch17 = body.newObject("Sketcher::SketchObject", "Sketch016")
sketch17.AttachmentSupport = (doc.getObject("XY_Plane"), [""])
sketch17.MapMode = "FlatFace"
sketch17.AttachmentOffset = App.Placement(Vector(0, 0, 3), App.Rotation())
sketch17.addGeometry([
    Part.ArcOfCircle(Part.Circle(Vector(42, -180, 0), Vector(0, 0, 1), 25), math.radians(-90), math.radians(0)),  # 0
    Part.ArcOfCircle(Part.Circle(Vector(42, -180, 0), Vector(0, 0, 1), 25), math.radians(0), math.radians(90)),  # 1
    Part.LineSegment(Vector(42, -155, 0), Vector(-38, -155, 0)),  # 2
    Part.ArcOfCircle(Part.Circle(Vector(-38, -180, 0), Vector(0, 0, 1), 25), math.radians(90), math.radians(270)),  # 3
    Part.LineSegment(Vector(-38, -205, 0), Vector(42, -205, 0)),  # 4
], False)
sketch17.addConstraint([
    Sketcher.Constraint("Tangent", 0, 2, 1, 1),
    Sketcher.Constraint("Tangent", 1, 2, 2, 1),
    Sketcher.Constraint("Tangent", 2, 2, 3, 1),
    Sketcher.Constraint("Tangent", 3, 2, 4, 1),
    Sketcher.Constraint("Tangent", 4, 2, 0, 1),
    Sketcher.Constraint("Horizontal", 2),
    Sketcher.Constraint("Horizontal", 4),
    Sketcher.Constraint("Equal", 0, 1),
    Sketcher.Constraint("Horizontal", 3, 3, 0, 2),
    Sketcher.Constraint("Radius", 0, 25.0),
    Sketcher.Constraint("DistanceX", 2, 2, 2, 1, 80.0),
    Sketcher.Constraint("DistanceY", 0, 3, -1, 1, 180.0),
    Sketcher.Constraint("DistanceX", -1, 1, 0, 3, 41.5),
])
pocket16 = body.newObject("PartDesign::Pocket", "Pocket015")
pocket16.Profile = sketch17
pocket16.Type = "UpToFirst"

doc.recompute()
